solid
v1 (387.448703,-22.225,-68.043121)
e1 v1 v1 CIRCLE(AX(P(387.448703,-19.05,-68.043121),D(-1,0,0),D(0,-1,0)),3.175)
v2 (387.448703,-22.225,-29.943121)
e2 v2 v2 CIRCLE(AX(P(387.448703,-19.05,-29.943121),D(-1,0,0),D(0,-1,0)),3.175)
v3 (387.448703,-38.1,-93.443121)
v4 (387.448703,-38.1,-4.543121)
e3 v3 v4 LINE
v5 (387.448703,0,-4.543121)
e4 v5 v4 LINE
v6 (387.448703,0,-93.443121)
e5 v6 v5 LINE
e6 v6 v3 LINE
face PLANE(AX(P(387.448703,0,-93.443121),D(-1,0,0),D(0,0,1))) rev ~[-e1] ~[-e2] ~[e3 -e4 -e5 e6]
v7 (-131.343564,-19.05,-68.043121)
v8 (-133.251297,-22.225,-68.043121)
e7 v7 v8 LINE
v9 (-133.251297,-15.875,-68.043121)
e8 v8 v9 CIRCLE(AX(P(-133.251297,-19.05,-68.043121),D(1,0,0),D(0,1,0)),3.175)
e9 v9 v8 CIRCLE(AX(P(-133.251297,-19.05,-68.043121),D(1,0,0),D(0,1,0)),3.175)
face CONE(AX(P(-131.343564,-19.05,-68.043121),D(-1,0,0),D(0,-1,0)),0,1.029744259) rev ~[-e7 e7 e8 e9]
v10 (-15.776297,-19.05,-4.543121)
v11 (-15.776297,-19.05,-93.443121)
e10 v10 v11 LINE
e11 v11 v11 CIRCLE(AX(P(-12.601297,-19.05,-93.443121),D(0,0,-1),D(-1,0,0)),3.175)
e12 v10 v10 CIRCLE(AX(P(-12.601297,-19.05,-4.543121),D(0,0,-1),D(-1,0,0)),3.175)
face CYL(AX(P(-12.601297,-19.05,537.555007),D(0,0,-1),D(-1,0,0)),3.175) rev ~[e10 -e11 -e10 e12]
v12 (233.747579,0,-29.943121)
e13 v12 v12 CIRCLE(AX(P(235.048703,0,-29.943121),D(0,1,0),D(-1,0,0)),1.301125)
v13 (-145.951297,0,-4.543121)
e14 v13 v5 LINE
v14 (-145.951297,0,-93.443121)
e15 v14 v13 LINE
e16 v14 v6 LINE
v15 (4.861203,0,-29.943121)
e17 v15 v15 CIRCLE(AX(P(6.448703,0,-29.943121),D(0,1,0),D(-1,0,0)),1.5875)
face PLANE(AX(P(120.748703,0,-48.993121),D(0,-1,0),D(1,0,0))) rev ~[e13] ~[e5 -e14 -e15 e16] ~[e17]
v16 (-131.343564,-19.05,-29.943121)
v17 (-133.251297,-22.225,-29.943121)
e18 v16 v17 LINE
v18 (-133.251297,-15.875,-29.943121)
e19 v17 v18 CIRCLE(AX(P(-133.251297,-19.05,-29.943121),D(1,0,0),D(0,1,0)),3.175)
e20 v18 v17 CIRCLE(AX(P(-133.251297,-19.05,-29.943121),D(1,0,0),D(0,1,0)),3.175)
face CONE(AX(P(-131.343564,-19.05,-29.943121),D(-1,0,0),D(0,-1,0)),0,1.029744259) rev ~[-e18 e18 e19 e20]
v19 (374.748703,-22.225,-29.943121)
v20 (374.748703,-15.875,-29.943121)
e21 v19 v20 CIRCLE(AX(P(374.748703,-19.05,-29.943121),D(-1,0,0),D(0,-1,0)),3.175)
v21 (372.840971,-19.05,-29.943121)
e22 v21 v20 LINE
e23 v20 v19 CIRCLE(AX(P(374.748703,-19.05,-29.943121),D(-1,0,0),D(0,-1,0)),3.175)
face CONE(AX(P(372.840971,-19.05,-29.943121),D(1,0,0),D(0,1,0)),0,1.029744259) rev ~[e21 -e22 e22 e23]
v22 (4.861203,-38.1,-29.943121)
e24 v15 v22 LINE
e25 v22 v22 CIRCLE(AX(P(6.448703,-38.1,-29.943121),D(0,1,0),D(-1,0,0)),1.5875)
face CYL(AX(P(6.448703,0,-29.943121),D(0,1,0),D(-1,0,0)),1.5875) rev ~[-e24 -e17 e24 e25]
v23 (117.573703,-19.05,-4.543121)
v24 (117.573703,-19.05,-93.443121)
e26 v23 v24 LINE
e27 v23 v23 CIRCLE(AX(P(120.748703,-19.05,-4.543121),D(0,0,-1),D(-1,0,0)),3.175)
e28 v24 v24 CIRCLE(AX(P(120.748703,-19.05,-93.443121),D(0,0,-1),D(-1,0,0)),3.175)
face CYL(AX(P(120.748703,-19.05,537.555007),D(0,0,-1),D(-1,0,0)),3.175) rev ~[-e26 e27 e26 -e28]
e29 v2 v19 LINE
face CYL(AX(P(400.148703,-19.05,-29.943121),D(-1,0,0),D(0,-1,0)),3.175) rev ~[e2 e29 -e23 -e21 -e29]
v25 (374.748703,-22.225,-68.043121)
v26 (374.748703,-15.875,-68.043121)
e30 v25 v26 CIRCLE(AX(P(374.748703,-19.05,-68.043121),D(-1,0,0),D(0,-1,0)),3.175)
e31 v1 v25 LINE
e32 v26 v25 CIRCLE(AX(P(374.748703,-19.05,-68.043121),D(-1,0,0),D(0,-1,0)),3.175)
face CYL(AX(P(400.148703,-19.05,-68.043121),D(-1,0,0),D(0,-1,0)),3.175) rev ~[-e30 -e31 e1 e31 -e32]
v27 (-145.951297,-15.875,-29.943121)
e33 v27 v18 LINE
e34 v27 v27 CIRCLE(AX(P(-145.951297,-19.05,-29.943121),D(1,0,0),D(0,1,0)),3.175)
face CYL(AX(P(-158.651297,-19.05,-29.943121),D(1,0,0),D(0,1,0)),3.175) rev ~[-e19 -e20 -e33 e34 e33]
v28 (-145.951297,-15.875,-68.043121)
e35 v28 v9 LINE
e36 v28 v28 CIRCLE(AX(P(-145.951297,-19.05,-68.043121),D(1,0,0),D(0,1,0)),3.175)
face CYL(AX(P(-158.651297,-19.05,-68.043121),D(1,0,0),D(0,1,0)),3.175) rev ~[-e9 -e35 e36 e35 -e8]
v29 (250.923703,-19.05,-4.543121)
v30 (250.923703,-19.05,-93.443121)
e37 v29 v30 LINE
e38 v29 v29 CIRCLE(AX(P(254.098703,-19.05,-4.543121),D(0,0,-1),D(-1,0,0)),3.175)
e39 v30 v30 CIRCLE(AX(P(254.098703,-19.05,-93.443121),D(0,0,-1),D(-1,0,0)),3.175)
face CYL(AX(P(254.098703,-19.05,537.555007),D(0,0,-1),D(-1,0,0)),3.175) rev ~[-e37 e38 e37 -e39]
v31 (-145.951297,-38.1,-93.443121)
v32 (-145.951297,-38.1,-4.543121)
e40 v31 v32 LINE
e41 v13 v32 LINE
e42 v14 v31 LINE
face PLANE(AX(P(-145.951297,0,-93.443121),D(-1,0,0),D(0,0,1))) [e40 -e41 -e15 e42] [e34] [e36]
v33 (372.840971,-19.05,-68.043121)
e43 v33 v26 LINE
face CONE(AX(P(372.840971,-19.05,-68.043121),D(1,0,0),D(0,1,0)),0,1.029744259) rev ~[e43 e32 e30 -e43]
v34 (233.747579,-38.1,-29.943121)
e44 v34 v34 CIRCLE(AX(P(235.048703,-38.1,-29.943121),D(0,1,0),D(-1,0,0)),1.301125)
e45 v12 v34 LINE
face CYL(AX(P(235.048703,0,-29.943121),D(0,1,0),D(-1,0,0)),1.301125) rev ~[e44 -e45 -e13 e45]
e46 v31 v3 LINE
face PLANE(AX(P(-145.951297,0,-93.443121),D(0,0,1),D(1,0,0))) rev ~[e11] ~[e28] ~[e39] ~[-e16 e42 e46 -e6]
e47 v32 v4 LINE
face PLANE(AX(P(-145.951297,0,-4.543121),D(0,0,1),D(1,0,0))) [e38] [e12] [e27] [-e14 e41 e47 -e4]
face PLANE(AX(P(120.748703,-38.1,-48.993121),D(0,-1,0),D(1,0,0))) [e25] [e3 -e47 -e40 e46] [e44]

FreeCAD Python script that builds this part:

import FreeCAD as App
import Part
import Sketcher
from FreeCAD import Vector
Q = App.Units.Quantity

doc = App.newDocument("Part")
body = doc.addObject("PartDesign::Body", "Body")

# Sketch on XZ plane
sketch1 = doc.addObject("Sketcher::SketchObject", "Sketch")
body.addObject(sketch1)
sketch1.AttachmentSupport = (doc.XZ_Plane, [""])
sketch1.MapMode = "FlatFace"
sketch1.addGeometry([
    Part.LineSegment(Vector(-146, -5, 0), Vector(-146, -93, 0)),
    Part.LineSegment(Vector(-146, -93, 0), Vector(387, -93, 0)),
    Part.LineSegment(Vector(387, -93, 0), Vector(387, -5, 0)),
    Part.LineSegment(Vector(387, -5, 0), Vector(-146, -5, 0)),
], False)
sketch1.addConstraint([
    Sketcher.Constraint("Coincident", 0, 2, 1, 1),
    Sketcher.Constraint("Coincident", 1, 2, 2, 1),
    Sketcher.Constraint("Coincident", 2, 2, 3, 1),
    Sketcher.Constraint("Coincident", 3, 2, 0, 1),
    Sketcher.Constraint("Vertical", 0),
    Sketcher.Constraint("Horizontal", 1),
    Sketcher.Constraint("Vertical", 2),
    Sketcher.Constraint("Horizontal", 3),
    Sketcher.Constraint("DistanceX", 1, 1, 1, 2, Q("21 in")),
    Sketcher.Constraint("DistanceY", 0, 2, 0, 1, Q("3.5 in")),
    Sketcher.Constraint("DistanceY", 0, 2, -1, 1, 93.443121),
    Sketcher.Constraint("DistanceX", 0, 2, -1, 1, 145.951297),
])
pad1 = doc.addObject("PartDesign::Pad", "Pad")
body.addObject(pad1)
pad1.Profile = sketch1
pad1.Length = Q("1.5 in")

# Sketch on YZ plane
sketch2 = doc.addObject("Sketcher::SketchObject", "Sketch001")
body.addObject(sketch2)
sketch2.AttachmentSupport = (doc.YZ_Plane, [""])
sketch2.MapMode = "FlatFace"
sketch2.AttachmentOffset = App.Placement(Vector(0, 0, 387.448703), App.Rotation())
sketch2.addGeometry([
    Part.Circle(Vector(-19.1, -29.9, 0), Vector(0, 0, 1), 3.2),
    Part.Circle(Vector(-19.1, -68, 0), Vector(0, 0, 1), 3.2),
], False)
sketch2.addConstraint([
    Sketcher.Constraint("Equal", 0, 1),
    Sketcher.Constraint("Vertical", 0, 3, 1, 3),
    Sketcher.Constraint("Diameter", 0, Q("0.25 in")),
    Sketcher.Constraint("DistanceY", 1, 3, 0, 3, Q("1.5 in")),
    Sketcher.Constraint("DistanceX", 0, 3, -1, 1, Q("0.75 in")),
    Sketcher.Constraint("DistanceY", 0, 3, -1, 1, 29.943121),
])
doc.recompute()
hole = doc.addObject("PartDesign::Hole", "Hole")
body.addObject(hole)
hole.Profile = sketch2
hole.ThreadType = "None"
hole.Diameter = Q("0.25 in")
hole.DepthType = "Dimension"
hole.Depth = Q("0.5 in")
hole.DrillPoint = "Angled"
hole.DrillPointAngle = 118

# Sketch on YZ plane
sketch3 = doc.addObject("Sketcher::SketchObject", "Sketch002")
body.addObject(sketch3)
sketch3.AttachmentSupport = (doc.YZ_Plane, [""])
sketch3.MapMode = "FlatFace"
sketch3.AttachmentOffset = App.Placement(Vector(0, 0, -145.951297), App.Rotation())
sketch3.addGeometry([
    Part.Circle(Vector(-19.1, -29.9, 0), Vector(0, 0, 1), 3.2),
    Part.Circle(Vector(-19.1, -68, 0), Vector(0, 0, 1), 3.2),
], False)
sketch3.addConstraint([
    Sketcher.Constraint("Equal", 0, 1),
    Sketcher.Constraint("Vertical", 0, 3, 1, 3),
    Sketcher.Constraint("Diameter", 0, Q("0.25 in")),
    Sketcher.Constraint("DistanceY", 1, 3, 0, 3, Q("1.5 in")),
    Sketcher.Constraint("DistanceX", 0, 3, -1, 1, Q("0.75 in")),
    Sketcher.Constraint("DistanceY", 0, 3, -1, 1, 29.943121),
])
doc.recompute()
hole2 = doc.addObject("PartDesign::Hole", "Hole001")
body.addObject(hole2)
hole2.Profile = sketch3
hole2.ThreadType = "None"
hole2.Diameter = Q("0.25 in")
hole2.DepthType = "Dimension"
hole2.Depth = Q("0.5 in")
hole2.DrillPoint = "Angled"
hole2.DrillPointAngle = 118
hole2.Reversed = True

# Sketch on XY plane
sketch4 = doc.addObject("Sketcher::SketchObject", "Sketch003")
body.addObject(sketch4)
sketch4.AttachmentSupport = (doc.XY_Plane, [""])
sketch4.MapMode = "FlatFace"
sketch4.AttachmentOffset = App.Placement(Vector(0, 0, -4.543121), App.Rotation())
sketch4.addGeometry([
    Part.Circle(Vector(-12.6, -19.1, 0), Vector(0, 0, 1), 3.2),
    Part.Circle(Vector(120.7, -19.1, 0), Vector(0, 0, 1), 3.2),
    Part.Circle(Vector(254.1, -19.1, 0), Vector(0, 0, 1), 3.2),
], False)
sketch4.addConstraint([
    Sketcher.Constraint("Equal", 0, 1),
    Sketcher.Constraint("Equal", 1, 2),
    Sketcher.Constraint("Horizontal", 0, 3, 1, 3),
    Sketcher.Constraint("Horizontal", 1, 3, 2, 3),
    Sketcher.Constraint("Diameter", 0, Q("0.25 in")),
    Sketcher.Constraint("DistanceX", 0, 3, 2, 3, Q("10.5 in")),
    Sketcher.Constraint("DistanceY", 0, 3, -1, 1, Q("0.75 in")),
    Sketcher.Constraint("DistanceX", 0, 3, 1, 3, Q("5.25 in")),
    Sketcher.Constraint("DistanceX", 0, 3, -1, 1, 12.601297),
])
doc.recompute()
hole3 = doc.addObject("PartDesign::Hole", "Hole002")
body.addObject(hole3)
hole3.Profile = sketch4
hole3.ThreadType = "None"
hole3.Diameter = Q("0.25 in")
hole3.DepthType = "ThroughAll"

# Sketch on XZ plane
sketch5 = doc.addObject("Sketcher::SketchObject", "Sketch004")
body.addObject(sketch5)
sketch5.AttachmentSupport = (doc.XZ_Plane, [""])
sketch5.MapMode = "FlatFace"
sketch5.addGeometry([
    Part.Circle(Vector(235, -29.9, 0), Vector(0, 0, 1), 1.3),
    Part.Circle(Vector(6.4, -29.9, 0), Vector(0, 0, 1), 1.6),
], False)
sketch5.addConstraint([
    Sketcher.Constraint("Horizontal", 0, 3, 1, 3),
    Sketcher.Constraint("Diameter", 1, Q("0.125 in")),
    Sketcher.Constraint("DistanceX", 1, 3, 0, 3, Q("9 in")),
    Sketcher.Constraint("Diameter", 0, 2.602249),
    Sketcher.Constraint("DistanceY", 0, 3, -1, 1, 29.943121),
    Sketcher.Constraint("DistanceX", -1, 1, 0, 3, 235.048703),
])
pocket1 = doc.addObject("PartDesign::Pocket", "Pocket")
body.addObject(pocket1)
pocket1.Profile = sketch5
pocket1.Type = "ThroughAll"
pocket1.Reversed = True

doc.recompute()
